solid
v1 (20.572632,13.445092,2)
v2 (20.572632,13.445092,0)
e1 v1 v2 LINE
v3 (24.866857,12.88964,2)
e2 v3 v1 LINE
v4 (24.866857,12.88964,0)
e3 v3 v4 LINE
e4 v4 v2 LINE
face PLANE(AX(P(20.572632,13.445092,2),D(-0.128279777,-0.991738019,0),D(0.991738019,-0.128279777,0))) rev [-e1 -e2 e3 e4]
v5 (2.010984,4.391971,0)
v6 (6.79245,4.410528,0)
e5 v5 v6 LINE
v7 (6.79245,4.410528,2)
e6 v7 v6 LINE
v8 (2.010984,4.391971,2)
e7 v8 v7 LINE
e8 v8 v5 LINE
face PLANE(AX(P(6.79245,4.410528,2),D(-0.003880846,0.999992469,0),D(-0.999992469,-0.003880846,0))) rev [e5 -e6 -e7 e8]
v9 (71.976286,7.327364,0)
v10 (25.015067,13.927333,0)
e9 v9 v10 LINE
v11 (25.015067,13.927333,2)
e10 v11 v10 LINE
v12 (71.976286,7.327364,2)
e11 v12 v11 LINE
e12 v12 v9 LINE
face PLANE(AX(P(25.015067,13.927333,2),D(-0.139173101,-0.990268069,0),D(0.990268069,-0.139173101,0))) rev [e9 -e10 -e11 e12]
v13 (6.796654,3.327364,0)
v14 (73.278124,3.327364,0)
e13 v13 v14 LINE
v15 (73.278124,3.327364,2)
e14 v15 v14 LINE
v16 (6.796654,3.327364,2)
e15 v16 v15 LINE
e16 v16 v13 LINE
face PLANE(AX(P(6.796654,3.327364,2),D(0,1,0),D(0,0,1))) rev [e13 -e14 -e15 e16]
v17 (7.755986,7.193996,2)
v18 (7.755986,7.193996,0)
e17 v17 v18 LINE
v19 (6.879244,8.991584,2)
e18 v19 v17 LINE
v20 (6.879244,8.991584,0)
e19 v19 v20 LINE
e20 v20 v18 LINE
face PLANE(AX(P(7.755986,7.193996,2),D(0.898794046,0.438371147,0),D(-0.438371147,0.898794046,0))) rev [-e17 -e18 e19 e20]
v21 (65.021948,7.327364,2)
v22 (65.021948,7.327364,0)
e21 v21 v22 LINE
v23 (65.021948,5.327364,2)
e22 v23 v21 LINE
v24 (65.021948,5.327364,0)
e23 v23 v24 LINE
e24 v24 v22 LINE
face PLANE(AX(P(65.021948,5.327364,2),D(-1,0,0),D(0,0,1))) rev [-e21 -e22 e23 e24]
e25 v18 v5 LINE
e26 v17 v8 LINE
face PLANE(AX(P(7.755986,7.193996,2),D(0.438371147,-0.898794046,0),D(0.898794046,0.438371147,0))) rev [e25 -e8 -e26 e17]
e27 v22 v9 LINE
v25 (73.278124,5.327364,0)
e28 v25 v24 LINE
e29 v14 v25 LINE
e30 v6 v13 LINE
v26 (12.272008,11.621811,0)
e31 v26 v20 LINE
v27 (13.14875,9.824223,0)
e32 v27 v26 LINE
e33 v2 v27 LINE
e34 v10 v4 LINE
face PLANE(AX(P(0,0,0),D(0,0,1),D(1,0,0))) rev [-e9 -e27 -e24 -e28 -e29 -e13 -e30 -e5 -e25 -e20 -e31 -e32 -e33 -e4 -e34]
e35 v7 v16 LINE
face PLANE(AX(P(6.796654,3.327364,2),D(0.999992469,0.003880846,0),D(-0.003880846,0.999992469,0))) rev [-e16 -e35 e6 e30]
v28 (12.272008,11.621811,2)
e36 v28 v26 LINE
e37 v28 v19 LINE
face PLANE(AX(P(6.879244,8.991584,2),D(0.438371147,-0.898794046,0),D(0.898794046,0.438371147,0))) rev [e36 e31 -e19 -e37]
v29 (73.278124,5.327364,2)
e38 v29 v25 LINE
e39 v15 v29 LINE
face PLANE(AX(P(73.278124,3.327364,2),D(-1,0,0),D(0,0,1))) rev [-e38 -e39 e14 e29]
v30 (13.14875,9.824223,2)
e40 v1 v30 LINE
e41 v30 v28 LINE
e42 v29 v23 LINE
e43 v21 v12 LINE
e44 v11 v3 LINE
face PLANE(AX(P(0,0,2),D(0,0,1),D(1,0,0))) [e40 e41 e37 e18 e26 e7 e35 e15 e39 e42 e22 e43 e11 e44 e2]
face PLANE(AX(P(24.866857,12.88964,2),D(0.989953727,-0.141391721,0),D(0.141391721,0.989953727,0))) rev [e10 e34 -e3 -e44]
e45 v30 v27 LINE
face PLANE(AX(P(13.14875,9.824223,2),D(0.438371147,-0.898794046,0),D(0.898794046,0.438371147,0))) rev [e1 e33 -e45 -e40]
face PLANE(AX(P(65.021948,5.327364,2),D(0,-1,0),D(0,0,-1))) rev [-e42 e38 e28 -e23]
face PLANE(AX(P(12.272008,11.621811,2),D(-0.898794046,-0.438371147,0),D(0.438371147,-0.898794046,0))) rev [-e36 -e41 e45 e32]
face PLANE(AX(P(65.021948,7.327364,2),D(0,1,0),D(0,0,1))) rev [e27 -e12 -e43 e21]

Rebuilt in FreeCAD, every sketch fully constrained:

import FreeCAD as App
import Part
import Sketcher

V = App.Vector
Q = App.Units.Quantity


def add_polygon(sketch, points):
    """Adds a closed chain of lines whose ends are joined by coincident constraints."""
    first, n = sketch.GeometryCount, len(points)
    for a, b in zip(points, points[1:] + points[:1]):
        sketch.addGeometry(Part.LineSegment(App.Vector(*a, 0), App.Vector(*b, 0)), False)
    for i in range(n):
        sketch.addConstraint(Sketcher.Constraint("Coincident", first + i, 2, first + (i + 1) % n, 1))

doc = App.newDocument("Part")
body = doc.addObject("PartDesign::Body", "Body")

sketch1 = body.newObject("Sketcher::SketchObject", "Sketch")
sketch1.AttachmentSupport = (doc.getObject("XY_Plane"), [""])
sketch1.MapMode = "FlatFace"
add_polygon(sketch1, [(6.879244, 8.991584), (7.755986, 7.193996), (2.010984, 4.391971), (6.79245, 4.410528), (6.796654, 3.327364), (73.278124, 3.327364), (73.278124, 5.327364), (65.021948, 5.327364), (65.021948, 7.327364), (71.976286, 7.327364), (25.015067, 13.927333), (24.866857, 12.88964), (20.572632, 13.445092), (13.14875, 9.824223), (12.272008, 11.621811)])
sketch1.addConstraint([
    Sketcher.Constraint("Horizontal", 4),
    Sketcher.Constraint("Vertical", 5),
    Sketcher.Constraint("Horizontal", 6),
    Sketcher.Constraint("Vertical", 7),
    Sketcher.Constraint("Horizontal", 8),
    Sketcher.Constraint("DistanceY", 5, 1, 5, 2, Q("2 mm")),
    Sketcher.Constraint("DistanceY", 7, 1, 7, 2, Q("2 mm")),
    Sketcher.Constraint("Distance", 0, Q("2 mm")),
    Sketcher.Constraint("Distance", 13, Q("2 mm")),
    Sketcher.Constraint("Distance", 14, Q("6 mm")),
    Sketcher.Constraint("Distance", 11, Q("4.33 mm")),
    Sketcher.Constraint("DistanceX", 1, 2, 0, 2, Q("5.745002 mm")),
    Sketcher.Constraint("Distance", 1, Q("6.3919 mm")),
    Sketcher.Constraint("Distance", 2, Q("4.781502 mm")),
    Sketcher.Constraint("DistanceX", 4, 1, 4, 2, Q("66.48147 mm")),
    Sketcher.Constraint("DistanceX", 8, 1, 8, 2, Q("6.954338 mm")),
    Sketcher.Constraint("DistanceX", 0, 2, 8, 2, Q("64.2203 mm")),
    Sketcher.Constraint("DistanceX", 2, 2, 12, 2, Q("6.3563 mm")),
    Sketcher.Constraint("DistanceX", 6, 2, 6, 1, Q("8.256176 mm")),
    Sketcher.Constraint("DistanceY", -1, 1, 1, 2, Q("4.391971 mm")),
    Sketcher.Constraint("DistanceX", -1, 1, 2, 2, Q("6.79245 mm")),
    Sketcher.Constraint("DistanceY", -1, 1, 10, 2, Q("12.88964 mm")),
    Sketcher.Constraint("DistanceX", -1, 1, 11, 2, Q("20.572632 mm")),
    Sketcher.Constraint("DistanceY", -1, 1, 11, 2, Q("13.445092 mm")),
    Sketcher.Constraint("DistanceX", -1, 1, 13, 2, Q("12.272008 mm")),
    Sketcher.Constraint("DistanceY", -1, 1, 13, 2, Q("11.621811 mm")),
    Sketcher.Constraint("DistanceY", 2, 2, 0, 2, Q("2.783468 mm")),
    Sketcher.Constraint("DistanceX", 0, 2, 9, 2, Q("17.259081 mm")),
    Sketcher.Constraint("DistanceY", 3, 2, 9, 2, Q("10.599969 mm")),
    Sketcher.Constraint("DistanceY", 1, 2, 9, 2, Q("9.535361 mm")),
])
pad1 = body.newObject("PartDesign::Pad", "Pad")
pad1.Profile = sketch1
pad1.Length = 2

doc.recompute()
